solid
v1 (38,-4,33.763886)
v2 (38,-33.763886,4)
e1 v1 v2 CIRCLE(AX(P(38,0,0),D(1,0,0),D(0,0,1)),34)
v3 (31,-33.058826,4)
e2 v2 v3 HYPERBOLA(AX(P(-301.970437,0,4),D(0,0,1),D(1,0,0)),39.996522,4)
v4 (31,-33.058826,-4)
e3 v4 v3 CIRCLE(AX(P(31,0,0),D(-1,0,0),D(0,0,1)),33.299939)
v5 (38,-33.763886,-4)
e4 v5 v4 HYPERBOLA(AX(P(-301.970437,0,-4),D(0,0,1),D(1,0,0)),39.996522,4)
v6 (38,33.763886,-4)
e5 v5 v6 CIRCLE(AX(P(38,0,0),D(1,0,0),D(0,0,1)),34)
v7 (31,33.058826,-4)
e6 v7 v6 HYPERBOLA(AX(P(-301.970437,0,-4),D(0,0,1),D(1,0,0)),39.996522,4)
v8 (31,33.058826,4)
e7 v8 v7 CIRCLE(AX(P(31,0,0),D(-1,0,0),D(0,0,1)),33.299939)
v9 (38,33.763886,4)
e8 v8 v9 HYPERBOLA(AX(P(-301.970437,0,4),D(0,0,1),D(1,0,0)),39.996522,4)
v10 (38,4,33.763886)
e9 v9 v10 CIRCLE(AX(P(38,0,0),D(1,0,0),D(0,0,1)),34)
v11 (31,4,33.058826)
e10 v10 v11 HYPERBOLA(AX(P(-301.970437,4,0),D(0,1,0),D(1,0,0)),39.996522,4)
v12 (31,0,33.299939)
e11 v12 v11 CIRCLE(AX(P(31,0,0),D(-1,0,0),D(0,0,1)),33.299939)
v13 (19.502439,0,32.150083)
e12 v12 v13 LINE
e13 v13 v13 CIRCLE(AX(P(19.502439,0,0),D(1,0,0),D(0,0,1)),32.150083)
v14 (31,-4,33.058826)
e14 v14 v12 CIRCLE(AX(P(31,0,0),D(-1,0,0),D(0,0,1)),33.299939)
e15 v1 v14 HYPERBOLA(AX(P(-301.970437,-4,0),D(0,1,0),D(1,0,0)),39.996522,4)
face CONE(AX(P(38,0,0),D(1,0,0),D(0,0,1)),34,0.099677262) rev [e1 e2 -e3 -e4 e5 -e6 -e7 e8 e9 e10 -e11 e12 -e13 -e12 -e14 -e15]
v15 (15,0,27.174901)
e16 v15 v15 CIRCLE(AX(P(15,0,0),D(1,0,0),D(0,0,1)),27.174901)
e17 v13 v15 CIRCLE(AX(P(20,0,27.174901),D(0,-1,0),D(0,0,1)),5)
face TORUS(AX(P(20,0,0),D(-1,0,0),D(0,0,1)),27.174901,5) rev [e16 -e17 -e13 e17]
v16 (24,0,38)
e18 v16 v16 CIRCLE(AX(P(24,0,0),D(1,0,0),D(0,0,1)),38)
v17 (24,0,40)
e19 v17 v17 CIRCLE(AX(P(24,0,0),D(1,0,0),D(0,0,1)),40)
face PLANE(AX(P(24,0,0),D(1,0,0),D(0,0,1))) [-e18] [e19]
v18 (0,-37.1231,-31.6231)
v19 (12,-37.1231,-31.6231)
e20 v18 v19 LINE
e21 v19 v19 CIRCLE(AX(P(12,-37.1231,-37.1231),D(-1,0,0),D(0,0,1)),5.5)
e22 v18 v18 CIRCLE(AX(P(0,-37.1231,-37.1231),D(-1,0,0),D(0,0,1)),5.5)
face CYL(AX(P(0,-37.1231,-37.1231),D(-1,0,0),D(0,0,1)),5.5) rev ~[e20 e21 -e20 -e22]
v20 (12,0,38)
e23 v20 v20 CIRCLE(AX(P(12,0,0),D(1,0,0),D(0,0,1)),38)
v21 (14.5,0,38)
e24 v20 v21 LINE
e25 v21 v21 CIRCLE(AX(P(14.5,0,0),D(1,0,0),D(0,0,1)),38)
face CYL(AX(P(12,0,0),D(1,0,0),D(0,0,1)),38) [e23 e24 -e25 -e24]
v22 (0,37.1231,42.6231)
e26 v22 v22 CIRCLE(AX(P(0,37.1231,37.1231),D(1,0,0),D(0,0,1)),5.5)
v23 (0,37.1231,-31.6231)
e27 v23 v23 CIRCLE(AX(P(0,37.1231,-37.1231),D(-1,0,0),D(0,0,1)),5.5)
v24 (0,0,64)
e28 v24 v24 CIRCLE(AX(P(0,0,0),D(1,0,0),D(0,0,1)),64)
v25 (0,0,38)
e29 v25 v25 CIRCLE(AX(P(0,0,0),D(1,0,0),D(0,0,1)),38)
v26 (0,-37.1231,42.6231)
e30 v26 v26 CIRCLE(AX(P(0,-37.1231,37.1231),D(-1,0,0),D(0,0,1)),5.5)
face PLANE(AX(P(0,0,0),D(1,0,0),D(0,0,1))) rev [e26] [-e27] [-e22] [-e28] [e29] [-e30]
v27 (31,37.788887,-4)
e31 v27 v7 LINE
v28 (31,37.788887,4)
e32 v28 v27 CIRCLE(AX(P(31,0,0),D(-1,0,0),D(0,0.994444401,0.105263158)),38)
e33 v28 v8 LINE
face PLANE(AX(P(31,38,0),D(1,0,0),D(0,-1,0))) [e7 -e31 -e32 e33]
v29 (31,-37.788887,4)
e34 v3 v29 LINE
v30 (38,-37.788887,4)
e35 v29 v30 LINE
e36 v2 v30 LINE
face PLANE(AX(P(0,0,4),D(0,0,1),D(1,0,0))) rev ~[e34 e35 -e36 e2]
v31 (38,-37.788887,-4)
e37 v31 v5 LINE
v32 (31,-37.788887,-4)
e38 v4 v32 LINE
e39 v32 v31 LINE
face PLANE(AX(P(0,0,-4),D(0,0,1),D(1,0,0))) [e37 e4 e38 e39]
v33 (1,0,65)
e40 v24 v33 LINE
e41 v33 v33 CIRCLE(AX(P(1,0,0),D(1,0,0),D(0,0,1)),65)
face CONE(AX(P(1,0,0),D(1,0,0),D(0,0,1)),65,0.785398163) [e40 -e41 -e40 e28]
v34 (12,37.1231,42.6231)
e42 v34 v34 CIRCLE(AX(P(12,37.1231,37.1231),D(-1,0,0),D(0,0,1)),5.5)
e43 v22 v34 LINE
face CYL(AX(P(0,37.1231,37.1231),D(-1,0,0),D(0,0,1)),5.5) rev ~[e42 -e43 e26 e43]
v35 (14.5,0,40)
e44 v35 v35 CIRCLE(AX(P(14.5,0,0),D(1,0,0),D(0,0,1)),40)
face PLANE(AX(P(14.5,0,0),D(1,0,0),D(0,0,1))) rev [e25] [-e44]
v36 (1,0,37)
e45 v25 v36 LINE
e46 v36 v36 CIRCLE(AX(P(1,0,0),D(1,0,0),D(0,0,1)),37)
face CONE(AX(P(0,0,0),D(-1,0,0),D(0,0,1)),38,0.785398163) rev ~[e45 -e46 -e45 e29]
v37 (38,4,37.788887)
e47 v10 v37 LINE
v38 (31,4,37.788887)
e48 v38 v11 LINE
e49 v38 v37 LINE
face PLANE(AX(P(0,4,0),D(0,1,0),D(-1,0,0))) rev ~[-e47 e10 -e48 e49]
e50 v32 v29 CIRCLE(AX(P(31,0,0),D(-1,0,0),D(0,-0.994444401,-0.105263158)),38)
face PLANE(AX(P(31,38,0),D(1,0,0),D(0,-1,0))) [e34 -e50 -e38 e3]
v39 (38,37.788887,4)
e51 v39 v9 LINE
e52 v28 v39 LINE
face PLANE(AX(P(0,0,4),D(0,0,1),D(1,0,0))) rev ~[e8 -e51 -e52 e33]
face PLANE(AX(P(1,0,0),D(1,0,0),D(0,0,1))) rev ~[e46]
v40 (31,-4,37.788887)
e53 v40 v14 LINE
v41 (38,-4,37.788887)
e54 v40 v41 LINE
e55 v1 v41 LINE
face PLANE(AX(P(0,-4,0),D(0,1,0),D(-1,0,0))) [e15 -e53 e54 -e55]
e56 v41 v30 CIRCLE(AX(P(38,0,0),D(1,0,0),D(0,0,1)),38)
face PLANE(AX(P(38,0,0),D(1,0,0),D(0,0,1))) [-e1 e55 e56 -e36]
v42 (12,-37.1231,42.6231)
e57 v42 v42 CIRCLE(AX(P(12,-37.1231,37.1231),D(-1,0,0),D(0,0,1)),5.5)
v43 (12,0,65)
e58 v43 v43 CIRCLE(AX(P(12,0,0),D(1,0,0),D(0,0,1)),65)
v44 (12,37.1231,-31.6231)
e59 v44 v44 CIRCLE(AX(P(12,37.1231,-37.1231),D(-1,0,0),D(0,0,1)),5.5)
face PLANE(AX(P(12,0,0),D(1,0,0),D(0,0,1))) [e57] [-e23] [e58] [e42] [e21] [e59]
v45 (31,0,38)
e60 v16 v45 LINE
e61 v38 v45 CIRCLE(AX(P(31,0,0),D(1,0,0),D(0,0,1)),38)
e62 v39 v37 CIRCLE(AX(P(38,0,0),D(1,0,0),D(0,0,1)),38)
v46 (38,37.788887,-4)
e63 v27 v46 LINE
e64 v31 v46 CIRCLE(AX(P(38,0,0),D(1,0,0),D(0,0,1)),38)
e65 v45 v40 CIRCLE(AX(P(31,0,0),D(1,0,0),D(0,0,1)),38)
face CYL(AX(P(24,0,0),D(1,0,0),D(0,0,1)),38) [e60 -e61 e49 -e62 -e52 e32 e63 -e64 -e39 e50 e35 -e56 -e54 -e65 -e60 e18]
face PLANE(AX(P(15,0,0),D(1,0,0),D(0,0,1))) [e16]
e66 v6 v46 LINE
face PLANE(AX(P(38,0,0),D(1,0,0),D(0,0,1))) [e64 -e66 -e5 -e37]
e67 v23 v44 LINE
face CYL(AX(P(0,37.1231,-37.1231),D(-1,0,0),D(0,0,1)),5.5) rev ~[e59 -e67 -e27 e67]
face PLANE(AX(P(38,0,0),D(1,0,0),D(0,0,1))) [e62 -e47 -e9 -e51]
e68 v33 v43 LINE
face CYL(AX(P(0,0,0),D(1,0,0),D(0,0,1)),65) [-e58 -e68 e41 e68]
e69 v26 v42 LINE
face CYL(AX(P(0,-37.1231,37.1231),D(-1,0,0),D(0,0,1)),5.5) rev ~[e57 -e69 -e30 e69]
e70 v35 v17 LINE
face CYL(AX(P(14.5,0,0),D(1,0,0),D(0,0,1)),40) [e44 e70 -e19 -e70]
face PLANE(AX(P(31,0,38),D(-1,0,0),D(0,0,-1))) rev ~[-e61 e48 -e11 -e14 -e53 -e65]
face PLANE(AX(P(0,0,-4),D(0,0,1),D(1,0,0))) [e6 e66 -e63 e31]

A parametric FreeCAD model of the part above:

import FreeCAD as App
import Part
import Sketcher
from FreeCAD import Vector
Q = App.Units.Quantity


def edges_at(feature, points):
    """Names of the edges that pass closest to the given points."""
    edges = feature.Shape.Edges
    near = lambda p: min(range(len(edges)), key=lambda i: edges[i].distToShape(Part.Vertex(*p))[0])
    return sorted({f"Edge{near(p) + 1}" for p in points})


def add_polygon(sketch, points):
    """Adds a closed chain of lines whose ends are joined by coincident constraints."""
    first, n = sketch.GeometryCount, len(points)
    for a, b in zip(points, points[1:] + points[:1]):
        sketch.addGeometry(Part.LineSegment(App.Vector(*a, 0), App.Vector(*b, 0)), False)
    for i in range(n):
        sketch.addConstraint(Sketcher.Constraint("Coincident", first + i, 2, first + (i + 1) % n, 1))

doc = App.newDocument("Part")
params = doc.addObject("Spreadsheet::Sheet", "Params")
for row, (alias, value) in enumerate([
    ("sketch1_width", "12 mm"),
    ("sketch1_width2", "2.5 mm"),
    ("revolution_angle", "360 deg"),
    ("sketch2_width", "7 mm"),
    ("sketch2_height", "58 mm"),
    ("pocket1_length", "8 mm"),
    ("sketch3_width", "7 mm"),
    ("sketch3_height", "76 mm"),
    ("pocket2_length", "8 mm"),
    ("sketch4_diameter", "11 mm"),
    ("pocket3_length", "12 mm"),
    ("chamfer_size", "1 mm"),
    ("fillet_radius", "5 mm"),
], start=1):
    params.set(f"A{row}", alias)
    params.set(f"B{row}", "=" + value)
    params.setAlias(f"B{row}", alias)

body = doc.addObject("PartDesign::Body", "Body")

# Sketch on XZ plane
sketch1 = body.newObject("Sketcher::SketchObject", "Sketch")
sketch1.AttachmentSupport = (doc.getObject("XZ_Plane"), [""])
sketch1.MapMode = "FlatFace"
add_polygon(sketch1, [(0, 38), (0, 65), (12, 65), (12, 38), (14.5, 38), (14.5, 40), (24, 40), (24, 38), (38, 38), (38, 34), (15, 31.6998), (15, 0), (1, 0), (1, 37)])  # lines 0-13
sketch1.addConstraint(Sketcher.Constraint("Vertical", 0))
sketch1.addConstraint(Sketcher.Constraint("Horizontal", 1))
sketch1.addConstraint(Sketcher.Constraint("Vertical", 2))
sketch1.addConstraint(Sketcher.Constraint("Horizontal", 3))
sketch1.addConstraint(Sketcher.Constraint("Vertical", 4))
sketch1.addConstraint(Sketcher.Constraint("Horizontal", 5))
sketch1.addConstraint(Sketcher.Constraint("Vertical", 6))
sketch1.addConstraint(Sketcher.Constraint("Horizontal", 7))
sketch1.addConstraint(Sketcher.Constraint("Vertical", 8))
sketch1.addConstraint(Sketcher.Constraint("Vertical", 10))
sketch1.addConstraint(Sketcher.Constraint("Horizontal", 11))
sketch1.addConstraint(Sketcher.Constraint("Vertical", 12))
sketch1.addConstraint(Sketcher.Constraint("PointOnObject", 0, 2, -2))
sketch1.addConstraint(Sketcher.Constraint("PointOnObject", 10, 2, -1))
sketch1.addConstraint(Sketcher.Constraint("Horizontal", 3, 2, 6, 2))
sketch1.addConstraint(Sketcher.Constraint("Horizontal", 7, 2, 13, 2))
sketch1.addConstraint(Sketcher.Constraint("Equal", 7, 11))
sketch1.addConstraint(Sketcher.Constraint("DistanceX", 1, 1, 1, 2, 12.0))
sketch1.addConstraint(Sketcher.Constraint("DistanceX", 3, 1, 3, 2, 2.5))
sketch1.addConstraint(Sketcher.Constraint("DistanceY", -1, 1, 0, 2, 65.0))
sketch1.addConstraint(Sketcher.Constraint("DistanceY", -1, 1, 2, 2, 38.0))
sketch1.addConstraint(Sketcher.Constraint("DistanceY", -1, 1, 4, 2, 40.0))
sketch1.addConstraint(Sketcher.Constraint("DistanceX", -1, 1, 7, 2, 38.0))
sketch1.addConstraint(Sketcher.Constraint("DistanceY", -1, 1, 8, 2, 34.0))
sketch1.addConstraint(Sketcher.Constraint("DistanceX", -1, 1, 9, 2, 15.0))
sketch1.addConstraint(Sketcher.Constraint("DistanceX", -1, 1, 11, 2, 1.0))
sketch1.addConstraint(Sketcher.Constraint("DistanceY", 12, 2, 2, 2, 1.0))
sketch1.addConstraint(Sketcher.Constraint("Angle", 9, Q("-174.289 deg")))
sketch1.setExpression("Constraints[31]", "Params.sketch1_width")
sketch1.setExpression("Constraints[32]", "Params.sketch1_width2")
revolution = body.newObject("PartDesign::Revolution", "Revolution")
revolution.Profile = sketch1
revolution.ReferenceAxis = (sketch1, ["H_Axis"])
revolution.setExpression("Angle", "Params.revolution_angle")

# Sketch on XZ plane
sketch2 = body.newObject("Sketcher::SketchObject", "Sketch001")
sketch2.AttachmentSupport = (doc.getObject("XZ_Plane"), [""])
sketch2.MapMode = "FlatFace"
add_polygon(sketch2, [(31, -20), (31, 38), (38, 38), (38, -20)])  # lines 0-3
sketch2.addConstraint(Sketcher.Constraint("Vertical", 0))
sketch2.addConstraint(Sketcher.Constraint("Horizontal", 1))
sketch2.addConstraint(Sketcher.Constraint("Vertical", 2))
sketch2.addConstraint(Sketcher.Constraint("Horizontal", 3))
sketch2.addConstraint(Sketcher.Constraint("DistanceX", 1, 1, 1, 2, 7.0))
sketch2.addConstraint(Sketcher.Constraint("DistanceY", 0, 1, 0, 2, 58.0))
sketch2.addConstraint(Sketcher.Constraint("DistanceX", -1, 1, 0, 2, 31.0))
sketch2.addConstraint(Sketcher.Constraint("DistanceY", -1, 1, 0, 2, 38.0))
sketch2.setExpression("Constraints[8]", "Params.sketch2_width")
sketch2.setExpression("Constraints[9]", "Params.sketch2_height")
pocket1 = body.newObject("PartDesign::Pocket", "Pocket")
pocket1.Profile = sketch2
pocket1.setExpression("Length", "Params.pocket1_length")
pocket1.Midplane = True

# Sketch on XY plane
sketch3 = body.newObject("Sketcher::SketchObject", "Sketch002")
sketch3.AttachmentSupport = (doc.getObject("XY_Plane"), [""])
sketch3.MapMode = "FlatFace"
add_polygon(sketch3, [(38, -38), (38, 38), (31, 38), (31, -38)])  # lines 0-3
sketch3.addConstraint(Sketcher.Constraint("Vertical", 0))
sketch3.addConstraint(Sketcher.Constraint("Horizontal", 1))
sketch3.addConstraint(Sketcher.Constraint("Vertical", 2))
sketch3.addConstraint(Sketcher.Constraint("Horizontal", 3))
sketch3.addConstraint(Sketcher.Constraint("DistanceX", 1, 2, 1, 1, 7.0))
sketch3.addConstraint(Sketcher.Constraint("DistanceY", 0, 1, 0, 2, 76.0))
sketch3.addConstraint(Sketcher.Constraint("DistanceX", -1, 1, 0, 2, 38.0))
sketch3.addConstraint(Sketcher.Constraint("DistanceY", -1, 1, 0, 2, 38.0))
sketch3.setExpression("Constraints[8]", "Params.sketch3_width")
sketch3.setExpression("Constraints[9]", "Params.sketch3_height")
pocket2 = body.newObject("PartDesign::Pocket", "Pocket001")
pocket2.Profile = sketch3
pocket2.setExpression("Length", "Params.pocket2_length")
pocket2.Midplane = True

# Sketch on YZ plane
sketch4 = body.newObject("Sketcher::SketchObject", "Sketch003")
sketch4.AttachmentSupport = (doc.getObject("YZ_Plane"), [""])
sketch4.MapMode = "FlatFace"
sketch4.addGeometry(Part.Circle(Vector(37.1231, 37.1231, 0), Vector(0, 0, 1), 5.5), False)
sketch4.addGeometry(Part.Circle(Vector(37.1231, -37.1231, 0), Vector(0, 0, 1), 5.5), False)
sketch4.addGeometry(Part.Circle(Vector(-37.1231, -37.1231, 0), Vector(0, 0, 1), 5.5), False)
sketch4.addGeometry(Part.Circle(Vector(-37.1231, 37.1231, 0), Vector(0, 0, 1), 5.5), False)
sketch4.addConstraint(Sketcher.Constraint("Equal", 0, 1))
sketch4.addConstraint(Sketcher.Constraint("Equal", 1, 2))
sketch4.addConstraint(Sketcher.Constraint("Equal", 2, 3))
sketch4.addConstraint(Sketcher.Constraint("Symmetric", 0, 3, 2, 3, -1, 1))
sketch4.addConstraint(Sketcher.Constraint("Symmetric", 1, 3, 3, 3, -1, 1))
sketch4.addConstraint(Sketcher.Constraint("Symmetric", 1, 3, 2, 3, -2))
sketch4.addConstraint(Sketcher.Constraint("Diameter", 0, 11.0))
sketch4.addConstraint(Sketcher.Constraint("DistanceX", -1, 1, 0, 3, 37.123))
sketch4.addConstraint(Sketcher.Constraint("DistanceY", -1, 1, 0, 3, 37.123))
sketch4.setExpression("Constraints[6]", "Params.sketch4_diameter")
pocket3 = body.newObject("PartDesign::Pocket", "Pocket002")
pocket3.Profile = sketch4
pocket3.setExpression("Length", "Params.pocket3_length")
pocket3.Reversed = True
doc.recompute()

chamfer = body.newObject("PartDesign::Chamfer", "Chamfer")
chamfer.Base = (pocket3, edges_at(pocket3, [(0, 0, -65)]))
chamfer.setExpression("Size", "Params.chamfer_size")
doc.recompute()

fillet = body.newObject("PartDesign::Fillet", "Fillet")
fillet.Base = (chamfer, edges_at(chamfer, [(15, 0, -31.7)]))
fillet.setExpression("Radius", "Params.fillet_radius")

doc.recompute()
